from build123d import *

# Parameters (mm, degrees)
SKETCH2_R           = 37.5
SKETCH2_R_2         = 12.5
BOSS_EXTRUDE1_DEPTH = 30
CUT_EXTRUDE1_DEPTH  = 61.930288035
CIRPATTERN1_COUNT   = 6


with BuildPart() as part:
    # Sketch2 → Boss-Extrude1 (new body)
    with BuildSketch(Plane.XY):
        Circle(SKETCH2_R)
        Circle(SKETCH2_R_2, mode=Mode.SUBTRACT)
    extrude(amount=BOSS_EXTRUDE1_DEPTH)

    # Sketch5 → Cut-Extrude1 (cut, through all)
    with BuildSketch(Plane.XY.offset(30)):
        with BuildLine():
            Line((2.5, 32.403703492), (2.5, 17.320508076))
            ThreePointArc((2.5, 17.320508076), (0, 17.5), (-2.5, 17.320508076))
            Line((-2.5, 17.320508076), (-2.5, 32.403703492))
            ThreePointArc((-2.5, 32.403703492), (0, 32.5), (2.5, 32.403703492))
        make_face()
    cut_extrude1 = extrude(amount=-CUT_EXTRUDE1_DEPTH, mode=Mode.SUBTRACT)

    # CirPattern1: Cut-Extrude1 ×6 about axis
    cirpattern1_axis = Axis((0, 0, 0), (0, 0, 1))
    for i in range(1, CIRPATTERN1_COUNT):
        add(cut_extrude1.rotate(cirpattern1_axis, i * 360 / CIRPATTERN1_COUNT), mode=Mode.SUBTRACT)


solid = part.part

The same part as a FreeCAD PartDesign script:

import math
import FreeCAD as App
import Part
import Sketcher

V = App.Vector

doc = App.newDocument("Part")
body = doc.addObject("PartDesign::Body", "Body")

# Sketch on XY plane
sketch1 = body.newObject("Sketcher::SketchObject", "Sketch")
sketch1.AttachmentSupport = (doc.getObject("XY_Plane"), [""])
sketch1.MapMode = "FlatFace"
sketch1.addGeometry(Part.Circle(V(0, 0, 0), V(0, 0, 1), 38), False)
sketch1.addGeometry(Part.Circle(V(0, 0, 0), V(0, 0, 1), 12), False)
sketch1.addConstraint(Sketcher.Constraint("Coincident", 0, 3, -1, 1))
sketch1.addConstraint(Sketcher.Constraint("Coincident", 1, 3, -1, 1))
sketch1.addConstraint(Sketcher.Constraint("Diameter", 0, 75.0))
sketch1.addConstraint(Sketcher.Constraint("Diameter", 1, 25.0))
pad1 = body.newObject("PartDesign::Pad", "Pad")
pad1.Profile = sketch1
pad1.Length = 30

# Sketch on XY plane
sketch2 = body.newObject("Sketcher::SketchObject", "Sketch001")
sketch2.AttachmentSupport = (doc.getObject("XY_Plane"), [""])
sketch2.MapMode = "FlatFace"
sketch2.AttachmentOffset = App.Placement(V(0, 0, 30), App.Rotation())
sketch2.addGeometry(Part.LineSegment(V(2, 17, 0), V(2, 32, 0)), False)
sketch2.addGeometry(Part.ArcOfCircle(Part.Circle(V(0, 0, 0), V(0, 0, 1), 32), math.radians(85.59), math.radians(94.41)), False)
sketch2.addGeometry(Part.LineSegment(V(-2, 32, 0), V(-2, 17, 0)), False)
sketch2.addGeometry(Part.ArcOfCircle(Part.Circle(V(0, 0, 0), V(0, 0, 1), 18), math.radians(81.79), math.radians(98.21)), False)
sketch2.addConstraint(Sketcher.Constraint("Coincident", 0, 2, 1, 1))
sketch2.addConstraint(Sketcher.Constraint("Coincident", 1, 2, 2, 1))
sketch2.addConstraint(Sketcher.Constraint("Coincident", 2, 2, 3, 2))
sketch2.addConstraint(Sketcher.Constraint("Coincident", 3, 1, 0, 1))
sketch2.addConstraint(Sketcher.Constraint("Vertical", 0))
sketch2.addConstraint(Sketcher.Constraint("Vertical", 2))
sketch2.addConstraint(Sketcher.Constraint("Coincident", 1, 3, -1, 1))
sketch2.addConstraint(Sketcher.Constraint("Coincident", 3, 3, -1, 1))
sketch2.addConstraint(Sketcher.Constraint("Horizontal", 0, 2, 1, 2))
sketch2.addConstraint(Sketcher.Constraint("Radius", 1, 32.5))
sketch2.addConstraint(Sketcher.Constraint("Radius", 3, 17.5))
sketch2.addConstraint(Sketcher.Constraint("DistanceX", 1, 2, 0, 2, 5.0))
pocket1 = body.newObject("PartDesign::Pocket", "Pocket")
pocket1.Profile = sketch2
pocket1.Type = "ThroughAll"
doc.recompute()

polarpattern = body.newObject("PartDesign::PolarPattern", "PolarPattern")
polarpattern.Originals = [pocket1]
polarpattern.Axis = (doc.getObject("Z_Axis"), [""])
polarpattern.Angle = 360
polarpattern.Occurrences = 6
body.Tip = polarpattern

doc.recompute()
